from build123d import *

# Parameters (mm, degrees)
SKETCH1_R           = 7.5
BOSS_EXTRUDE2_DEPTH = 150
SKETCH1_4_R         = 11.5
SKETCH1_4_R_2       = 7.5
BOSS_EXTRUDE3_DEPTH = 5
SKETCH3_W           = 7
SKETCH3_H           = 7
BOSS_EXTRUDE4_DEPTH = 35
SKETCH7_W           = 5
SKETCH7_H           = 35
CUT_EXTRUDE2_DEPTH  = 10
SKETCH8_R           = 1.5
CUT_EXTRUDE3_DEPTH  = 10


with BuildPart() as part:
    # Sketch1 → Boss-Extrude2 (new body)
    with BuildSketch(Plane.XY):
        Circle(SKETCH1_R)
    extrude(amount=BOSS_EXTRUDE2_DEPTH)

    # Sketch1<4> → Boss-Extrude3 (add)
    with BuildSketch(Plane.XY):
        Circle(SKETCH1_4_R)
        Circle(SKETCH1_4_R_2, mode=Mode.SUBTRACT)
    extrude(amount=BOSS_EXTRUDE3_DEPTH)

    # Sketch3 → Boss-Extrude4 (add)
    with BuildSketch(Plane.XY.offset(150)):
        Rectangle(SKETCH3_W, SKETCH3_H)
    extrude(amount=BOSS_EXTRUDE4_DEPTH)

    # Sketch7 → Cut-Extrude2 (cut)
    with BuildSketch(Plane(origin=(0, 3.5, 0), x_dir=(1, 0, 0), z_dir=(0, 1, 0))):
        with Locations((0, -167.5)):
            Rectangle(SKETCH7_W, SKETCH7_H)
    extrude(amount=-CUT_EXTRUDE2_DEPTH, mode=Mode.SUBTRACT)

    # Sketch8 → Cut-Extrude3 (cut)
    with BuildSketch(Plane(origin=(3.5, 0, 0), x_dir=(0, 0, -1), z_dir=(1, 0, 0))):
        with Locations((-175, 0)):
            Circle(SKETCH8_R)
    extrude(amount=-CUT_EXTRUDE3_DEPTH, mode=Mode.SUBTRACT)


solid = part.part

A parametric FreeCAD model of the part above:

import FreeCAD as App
import Part
import Sketcher
Q = App.Units.Quantity

doc = App.newDocument("Part")
body = doc.addObject("PartDesign::Body", "Body")

# Sketch on XY plane
sketch1 = body.newObject("Sketcher::SketchObject", "Sketch")
sketch1.AttachmentSupport = (doc.getObject("XY_Plane"), [""])
sketch1.MapMode = "FlatFace"
sketch1.addGeometry(Part.Circle(App.Vector(0, 0, 0), App.Vector(0, 0, 1), 7.5), False)
sketch1.addConstraint(Sketcher.Constraint("Coincident", 0, 3, -1, 1))
sketch1.addConstraint(Sketcher.Constraint("Diameter", 0, Q("15 mm")))
pad1 = body.newObject("PartDesign::Pad", "Pad")
pad1.Profile = sketch1
pad1.Length = 150

# Sketch on XY plane
sketch2 = body.newObject("Sketcher::SketchObject", "Sketch001")
sketch2.AttachmentSupport = (doc.getObject("XY_Plane"), [""])
sketch2.MapMode = "FlatFace"
sketch2.addGeometry(Part.Circle(App.Vector(0, 0, 0), App.Vector(0, 0, 1), 11.5), False)
sketch2.addGeometry(Part.Circle(App.Vector(0, 0, 0), App.Vector(0, 0, 1), 7.5), False)
sketch2.addConstraint(Sketcher.Constraint("Coincident", 0, 3, -1, 1))
sketch2.addConstraint(Sketcher.Constraint("Coincident", 1, 3, -1, 1))
sketch2.addConstraint(Sketcher.Constraint("Diameter", 0, Q("23 mm")))
sketch2.addConstraint(Sketcher.Constraint("Diameter", 1, Q("15 mm")))
pad2 = body.newObject("PartDesign::Pad", "Pad001")
pad2.Profile = sketch2
pad2.Length = 5

# Sketch on XY plane
sketch3 = body.newObject("Sketcher::SketchObject", "Sketch002")
sketch3.AttachmentSupport = (doc.getObject("XY_Plane"), [""])
sketch3.MapMode = "FlatFace"
sketch3.AttachmentOffset = App.Placement(App.Vector(0, 0, 150), App.Rotation())
sketch3.addGeometry(Part.LineSegment(App.Vector(-3.5, 3.5, 0), App.Vector(-3.5, -3.5, 0)), False)
sketch3.addGeometry(Part.LineSegment(App.Vector(-3.5, -3.5, 0), App.Vector(3.5, -3.5, 0)), False)
sketch3.addGeometry(Part.LineSegment(App.Vector(3.5, -3.5, 0), App.Vector(3.5, 3.5, 0)), False)
sketch3.addGeometry(Part.LineSegment(App.Vector(3.5, 3.5, 0), App.Vector(-3.5, 3.5, 0)), False)
sketch3.addConstraint(Sketcher.Constraint("Coincident", 0, 2, 1, 1))
sketch3.addConstraint(Sketcher.Constraint("Coincident", 1, 2, 2, 1))
sketch3.addConstraint(Sketcher.Constraint("Coincident", 2, 2, 3, 1))
sketch3.addConstraint(Sketcher.Constraint("Coincident", 3, 2, 0, 1))
sketch3.addConstraint(Sketcher.Constraint("Vertical", 0))
sketch3.addConstraint(Sketcher.Constraint("Horizontal", 1))
sketch3.addConstraint(Sketcher.Constraint("Vertical", 2))
sketch3.addConstraint(Sketcher.Constraint("Horizontal", 3))
sketch3.addConstraint(Sketcher.Constraint("Symmetric", 0, 2, 2, 2, -1, 1))
sketch3.addConstraint(Sketcher.Constraint("Equal", 3, 0))
sketch3.addConstraint(Sketcher.Constraint("DistanceX", 1, 1, 1, 2, Q("7 mm")))
pad3 = body.newObject("PartDesign::Pad", "Pad002")
pad3.Profile = sketch3
pad3.Length = 35

# Sketch on XZ plane
sketch4 = body.newObject("Sketcher::SketchObject", "Sketch003")
sketch4.AttachmentSupport = (doc.getObject("XZ_Plane"), [""])
sketch4.MapMode = "FlatFace"
sketch4.AttachmentOffset = App.Placement(App.Vector(0, 0, -3.5), App.Rotation())
sketch4.addGeometry(Part.LineSegment(App.Vector(-2.5, 150, 0), App.Vector(-2.5, 185, 0)), False)
sketch4.addGeometry(Part.LineSegment(App.Vector(-2.5, 185, 0), App.Vector(2.5, 185, 0)), False)
sketch4.addGeometry(Part.LineSegment(App.Vector(2.5, 185, 0), App.Vector(2.5, 150, 0)), False)
sketch4.addGeometry(Part.LineSegment(App.Vector(2.5, 150, 0), App.Vector(-2.5, 150, 0)), False)
sketch4.addConstraint(Sketcher.Constraint("Coincident", 0, 2, 1, 1))
sketch4.addConstraint(Sketcher.Constraint("Coincident", 1, 2, 2, 1))
sketch4.addConstraint(Sketcher.Constraint("Coincident", 2, 2, 3, 1))
sketch4.addConstraint(Sketcher.Constraint("Coincident", 3, 2, 0, 1))
sketch4.addConstraint(Sketcher.Constraint("Vertical", 0))
sketch4.addConstraint(Sketcher.Constraint("Horizontal", 1))
sketch4.addConstraint(Sketcher.Constraint("Vertical", 2))
sketch4.addConstraint(Sketcher.Constraint("Horizontal", 3))
sketch4.addConstraint(Sketcher.Constraint("DistanceX", 1, 1, 1, 2, Q("5 mm")))
sketch4.addConstraint(Sketcher.Constraint("DistanceY", 0, 1, 0, 2, Q("35 mm")))
sketch4.addConstraint(Sketcher.Constraint("DistanceY", -1, 1, 0, 2, Q("185 mm")))
sketch4.addConstraint(Sketcher.Constraint("DistanceX", 0, 2, -1, 1, Q("2.5 mm")))
pocket1 = body.newObject("PartDesign::Pocket", "Pocket")
pocket1.Profile = sketch4
pocket1.Length = 10
pocket1.Reversed = True

# Sketch on YZ plane
sketch5 = body.newObject("Sketcher::SketchObject", "Sketch004")
sketch5.AttachmentSupport = (doc.getObject("YZ_Plane"), [""])
sketch5.MapMode = "FlatFace"
sketch5.AttachmentOffset = App.Placement(App.Vector(0, 0, 3.5), App.Rotation())
sketch5.addGeometry(Part.Circle(App.Vector(0, 175, 0), App.Vector(0, 0, 1), 1.5), False)
sketch5.addConstraint(Sketcher.Constraint("PointOnObject", 0, 3, -2))
sketch5.addConstraint(Sketcher.Constraint("Diameter", 0, Q("3 mm")))
sketch5.addConstraint(Sketcher.Constraint("DistanceY", -1, 1, 0, 3, Q("175 mm")))
pocket2 = body.newObject("PartDesign::Pocket", "Pocket001")
pocket2.Profile = sketch5
pocket2.Length = 10

doc.recompute()
